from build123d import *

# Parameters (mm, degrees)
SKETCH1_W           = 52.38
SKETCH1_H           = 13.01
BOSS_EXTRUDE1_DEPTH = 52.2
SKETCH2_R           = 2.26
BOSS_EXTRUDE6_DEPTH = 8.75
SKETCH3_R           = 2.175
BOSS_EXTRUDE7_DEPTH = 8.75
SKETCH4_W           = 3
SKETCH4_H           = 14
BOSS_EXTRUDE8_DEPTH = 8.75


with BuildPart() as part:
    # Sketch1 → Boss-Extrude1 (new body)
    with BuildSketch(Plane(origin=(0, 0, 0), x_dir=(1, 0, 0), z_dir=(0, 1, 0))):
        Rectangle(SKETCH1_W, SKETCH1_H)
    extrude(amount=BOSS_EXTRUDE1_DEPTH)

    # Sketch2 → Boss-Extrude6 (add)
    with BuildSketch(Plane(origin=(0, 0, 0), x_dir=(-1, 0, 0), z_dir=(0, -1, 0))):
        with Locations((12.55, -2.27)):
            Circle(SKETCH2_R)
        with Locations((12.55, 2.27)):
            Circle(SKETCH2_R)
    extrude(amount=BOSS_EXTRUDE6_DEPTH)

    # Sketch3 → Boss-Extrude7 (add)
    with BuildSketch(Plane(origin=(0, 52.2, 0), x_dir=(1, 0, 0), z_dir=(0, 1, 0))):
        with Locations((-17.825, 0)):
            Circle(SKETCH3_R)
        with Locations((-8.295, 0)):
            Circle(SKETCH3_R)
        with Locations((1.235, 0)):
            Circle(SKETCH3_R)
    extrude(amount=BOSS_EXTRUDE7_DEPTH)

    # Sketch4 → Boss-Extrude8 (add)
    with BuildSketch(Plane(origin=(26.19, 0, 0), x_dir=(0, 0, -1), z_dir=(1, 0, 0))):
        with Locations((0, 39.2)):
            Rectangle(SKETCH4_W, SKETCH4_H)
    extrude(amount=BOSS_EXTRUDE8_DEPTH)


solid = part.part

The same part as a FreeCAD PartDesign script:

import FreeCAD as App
import Part
import Sketcher
from FreeCAD import Vector
Q = App.Units.Quantity


def add_polygon(sketch, points):
    """Adds a closed chain of lines whose ends are joined by coincident constraints."""
    first, n = sketch.GeometryCount, len(points)
    for a, b in zip(points, points[1:] + points[:1]):
        sketch.addGeometry(Part.LineSegment(App.Vector(*a, 0), App.Vector(*b, 0)), False)
    for i in range(n):
        sketch.addConstraint(Sketcher.Constraint("Coincident", first + i, 2, first + (i + 1) % n, 1))

doc = App.newDocument("Part")
body = doc.addObject("PartDesign::Body", "Body")

# Sketch on XZ plane
sketch1 = body.newObject("Sketcher::SketchObject", "Sketch")
sketch1.AttachmentSupport = (doc.getObject("XZ_Plane"), [""])
sketch1.MapMode = "FlatFace"
add_polygon(sketch1, [(-26.19, -6.505), (-26.19, 6.505), (26.19, 6.505), (26.19, -6.505)])  # lines 0-3
sketch1.addConstraint([
    Sketcher.Constraint("Vertical", 0),
    Sketcher.Constraint("Horizontal", 1),
    Sketcher.Constraint("Vertical", 2),
    Sketcher.Constraint("Horizontal", 3),
    Sketcher.Constraint("Symmetric", 0, 2, 2, 2, -1, 1),
    Sketcher.Constraint("DistanceX", 1, 1, 1, 2, Q("52.38 mm")),
    Sketcher.Constraint("DistanceY", 0, 1, 0, 2, Q("13.01 mm")),
])
pad1 = body.newObject("PartDesign::Pad", "Pad")
pad1.Profile = sketch1
pad1.Length = 52.2
pad1.Reversed = True

# Sketch on XZ plane
sketch2 = body.newObject("Sketcher::SketchObject", "Sketch001")
sketch2.AttachmentSupport = (doc.getObject("XZ_Plane"), [""])
sketch2.MapMode = "FlatFace"
sketch2.addGeometry([
    Part.Circle(Vector(-12.55, 2.27, 0), Vector(0, 0, 1), 2.26),
    Part.Circle(Vector(-12.55, -2.27, 0), Vector(0, 0, 1), 2.26),
], False)
sketch2.addConstraint([
    Sketcher.Constraint("Equal", 0, 1),
    Sketcher.Constraint("Symmetric", 0, 3, 1, 3, -1),
    Sketcher.Constraint("Diameter", 0, Q("4.52 mm")),
    Sketcher.Constraint("DistanceX", 0, 3, -1, 1, Q("12.55 mm")),
    Sketcher.Constraint("DistanceY", -1, 1, 0, 3, Q("2.27 mm")),
])
pad2 = body.newObject("PartDesign::Pad", "Pad001")
pad2.Profile = sketch2
pad2.Length = 8.75

# Sketch on XZ plane
sketch3 = body.newObject("Sketcher::SketchObject", "Sketch002")
sketch3.AttachmentSupport = (doc.getObject("XZ_Plane"), [""])
sketch3.MapMode = "FlatFace"
sketch3.AttachmentOffset = App.Placement(Vector(0, 0, -52.2), App.Rotation())
sketch3.addGeometry([
    Part.Circle(Vector(-17.825, 0, 0), Vector(0, 0, 1), 2.175),
    Part.Circle(Vector(-8.295, 0, 0), Vector(0, 0, 1), 2.175),
    Part.Circle(Vector(1.235, 0, 0), Vector(0, 0, 1), 2.175),
], False)
sketch3.addConstraint([
    Sketcher.Constraint("Equal", 0, 1),
    Sketcher.Constraint("Equal", 1, 2),
    Sketcher.Constraint("PointOnObject", 0, 3, -1),
    Sketcher.Constraint("PointOnObject", 1, 3, -1),
    Sketcher.Constraint("PointOnObject", 2, 3, -1),
    Sketcher.Constraint("Diameter", 0, Q("4.35 mm")),
    Sketcher.Constraint("DistanceX", 0, 3, 1, 3, Q("9.53 mm")),
    Sketcher.Constraint("DistanceX", 1, 3, 2, 3, Q("9.53 mm")),
    Sketcher.Constraint("DistanceX", 0, 3, -1, 1, Q("17.825 mm")),
])
pad3 = body.newObject("PartDesign::Pad", "Pad002")
pad3.Profile = sketch3
pad3.Length = 8.75
pad3.Reversed = True

# Sketch on YZ plane
sketch4 = body.newObject("Sketcher::SketchObject", "Sketch003")
sketch4.AttachmentSupport = (doc.getObject("YZ_Plane"), [""])
sketch4.MapMode = "FlatFace"
sketch4.AttachmentOffset = App.Placement(Vector(0, 0, 26.19), App.Rotation())
add_polygon(sketch4, [(46.2, 1.5), (32.2, 1.5), (32.2, -1.5), (46.2, -1.5)])  # lines 0-3
sketch4.addConstraint([
    Sketcher.Constraint("Horizontal", 0),
    Sketcher.Constraint("Vertical", 1),
    Sketcher.Constraint("Horizontal", 2),
    Sketcher.Constraint("Vertical", 3),
    Sketcher.Constraint("DistanceX", 0, 2, 0, 1, Q("14 mm")),
    Sketcher.Constraint("DistanceY", 1, 2, 1, 1, Q("3 mm")),
    Sketcher.Constraint("DistanceX", -1, 1, 0, 2, Q("32.2 mm")),
    Sketcher.Constraint("DistanceY", -1, 1, 0, 2, Q("1.5 mm")),
])
pad4 = body.newObject("PartDesign::Pad", "Pad003")
pad4.Profile = sketch4
pad4.Length = 8.75

doc.recompute()
